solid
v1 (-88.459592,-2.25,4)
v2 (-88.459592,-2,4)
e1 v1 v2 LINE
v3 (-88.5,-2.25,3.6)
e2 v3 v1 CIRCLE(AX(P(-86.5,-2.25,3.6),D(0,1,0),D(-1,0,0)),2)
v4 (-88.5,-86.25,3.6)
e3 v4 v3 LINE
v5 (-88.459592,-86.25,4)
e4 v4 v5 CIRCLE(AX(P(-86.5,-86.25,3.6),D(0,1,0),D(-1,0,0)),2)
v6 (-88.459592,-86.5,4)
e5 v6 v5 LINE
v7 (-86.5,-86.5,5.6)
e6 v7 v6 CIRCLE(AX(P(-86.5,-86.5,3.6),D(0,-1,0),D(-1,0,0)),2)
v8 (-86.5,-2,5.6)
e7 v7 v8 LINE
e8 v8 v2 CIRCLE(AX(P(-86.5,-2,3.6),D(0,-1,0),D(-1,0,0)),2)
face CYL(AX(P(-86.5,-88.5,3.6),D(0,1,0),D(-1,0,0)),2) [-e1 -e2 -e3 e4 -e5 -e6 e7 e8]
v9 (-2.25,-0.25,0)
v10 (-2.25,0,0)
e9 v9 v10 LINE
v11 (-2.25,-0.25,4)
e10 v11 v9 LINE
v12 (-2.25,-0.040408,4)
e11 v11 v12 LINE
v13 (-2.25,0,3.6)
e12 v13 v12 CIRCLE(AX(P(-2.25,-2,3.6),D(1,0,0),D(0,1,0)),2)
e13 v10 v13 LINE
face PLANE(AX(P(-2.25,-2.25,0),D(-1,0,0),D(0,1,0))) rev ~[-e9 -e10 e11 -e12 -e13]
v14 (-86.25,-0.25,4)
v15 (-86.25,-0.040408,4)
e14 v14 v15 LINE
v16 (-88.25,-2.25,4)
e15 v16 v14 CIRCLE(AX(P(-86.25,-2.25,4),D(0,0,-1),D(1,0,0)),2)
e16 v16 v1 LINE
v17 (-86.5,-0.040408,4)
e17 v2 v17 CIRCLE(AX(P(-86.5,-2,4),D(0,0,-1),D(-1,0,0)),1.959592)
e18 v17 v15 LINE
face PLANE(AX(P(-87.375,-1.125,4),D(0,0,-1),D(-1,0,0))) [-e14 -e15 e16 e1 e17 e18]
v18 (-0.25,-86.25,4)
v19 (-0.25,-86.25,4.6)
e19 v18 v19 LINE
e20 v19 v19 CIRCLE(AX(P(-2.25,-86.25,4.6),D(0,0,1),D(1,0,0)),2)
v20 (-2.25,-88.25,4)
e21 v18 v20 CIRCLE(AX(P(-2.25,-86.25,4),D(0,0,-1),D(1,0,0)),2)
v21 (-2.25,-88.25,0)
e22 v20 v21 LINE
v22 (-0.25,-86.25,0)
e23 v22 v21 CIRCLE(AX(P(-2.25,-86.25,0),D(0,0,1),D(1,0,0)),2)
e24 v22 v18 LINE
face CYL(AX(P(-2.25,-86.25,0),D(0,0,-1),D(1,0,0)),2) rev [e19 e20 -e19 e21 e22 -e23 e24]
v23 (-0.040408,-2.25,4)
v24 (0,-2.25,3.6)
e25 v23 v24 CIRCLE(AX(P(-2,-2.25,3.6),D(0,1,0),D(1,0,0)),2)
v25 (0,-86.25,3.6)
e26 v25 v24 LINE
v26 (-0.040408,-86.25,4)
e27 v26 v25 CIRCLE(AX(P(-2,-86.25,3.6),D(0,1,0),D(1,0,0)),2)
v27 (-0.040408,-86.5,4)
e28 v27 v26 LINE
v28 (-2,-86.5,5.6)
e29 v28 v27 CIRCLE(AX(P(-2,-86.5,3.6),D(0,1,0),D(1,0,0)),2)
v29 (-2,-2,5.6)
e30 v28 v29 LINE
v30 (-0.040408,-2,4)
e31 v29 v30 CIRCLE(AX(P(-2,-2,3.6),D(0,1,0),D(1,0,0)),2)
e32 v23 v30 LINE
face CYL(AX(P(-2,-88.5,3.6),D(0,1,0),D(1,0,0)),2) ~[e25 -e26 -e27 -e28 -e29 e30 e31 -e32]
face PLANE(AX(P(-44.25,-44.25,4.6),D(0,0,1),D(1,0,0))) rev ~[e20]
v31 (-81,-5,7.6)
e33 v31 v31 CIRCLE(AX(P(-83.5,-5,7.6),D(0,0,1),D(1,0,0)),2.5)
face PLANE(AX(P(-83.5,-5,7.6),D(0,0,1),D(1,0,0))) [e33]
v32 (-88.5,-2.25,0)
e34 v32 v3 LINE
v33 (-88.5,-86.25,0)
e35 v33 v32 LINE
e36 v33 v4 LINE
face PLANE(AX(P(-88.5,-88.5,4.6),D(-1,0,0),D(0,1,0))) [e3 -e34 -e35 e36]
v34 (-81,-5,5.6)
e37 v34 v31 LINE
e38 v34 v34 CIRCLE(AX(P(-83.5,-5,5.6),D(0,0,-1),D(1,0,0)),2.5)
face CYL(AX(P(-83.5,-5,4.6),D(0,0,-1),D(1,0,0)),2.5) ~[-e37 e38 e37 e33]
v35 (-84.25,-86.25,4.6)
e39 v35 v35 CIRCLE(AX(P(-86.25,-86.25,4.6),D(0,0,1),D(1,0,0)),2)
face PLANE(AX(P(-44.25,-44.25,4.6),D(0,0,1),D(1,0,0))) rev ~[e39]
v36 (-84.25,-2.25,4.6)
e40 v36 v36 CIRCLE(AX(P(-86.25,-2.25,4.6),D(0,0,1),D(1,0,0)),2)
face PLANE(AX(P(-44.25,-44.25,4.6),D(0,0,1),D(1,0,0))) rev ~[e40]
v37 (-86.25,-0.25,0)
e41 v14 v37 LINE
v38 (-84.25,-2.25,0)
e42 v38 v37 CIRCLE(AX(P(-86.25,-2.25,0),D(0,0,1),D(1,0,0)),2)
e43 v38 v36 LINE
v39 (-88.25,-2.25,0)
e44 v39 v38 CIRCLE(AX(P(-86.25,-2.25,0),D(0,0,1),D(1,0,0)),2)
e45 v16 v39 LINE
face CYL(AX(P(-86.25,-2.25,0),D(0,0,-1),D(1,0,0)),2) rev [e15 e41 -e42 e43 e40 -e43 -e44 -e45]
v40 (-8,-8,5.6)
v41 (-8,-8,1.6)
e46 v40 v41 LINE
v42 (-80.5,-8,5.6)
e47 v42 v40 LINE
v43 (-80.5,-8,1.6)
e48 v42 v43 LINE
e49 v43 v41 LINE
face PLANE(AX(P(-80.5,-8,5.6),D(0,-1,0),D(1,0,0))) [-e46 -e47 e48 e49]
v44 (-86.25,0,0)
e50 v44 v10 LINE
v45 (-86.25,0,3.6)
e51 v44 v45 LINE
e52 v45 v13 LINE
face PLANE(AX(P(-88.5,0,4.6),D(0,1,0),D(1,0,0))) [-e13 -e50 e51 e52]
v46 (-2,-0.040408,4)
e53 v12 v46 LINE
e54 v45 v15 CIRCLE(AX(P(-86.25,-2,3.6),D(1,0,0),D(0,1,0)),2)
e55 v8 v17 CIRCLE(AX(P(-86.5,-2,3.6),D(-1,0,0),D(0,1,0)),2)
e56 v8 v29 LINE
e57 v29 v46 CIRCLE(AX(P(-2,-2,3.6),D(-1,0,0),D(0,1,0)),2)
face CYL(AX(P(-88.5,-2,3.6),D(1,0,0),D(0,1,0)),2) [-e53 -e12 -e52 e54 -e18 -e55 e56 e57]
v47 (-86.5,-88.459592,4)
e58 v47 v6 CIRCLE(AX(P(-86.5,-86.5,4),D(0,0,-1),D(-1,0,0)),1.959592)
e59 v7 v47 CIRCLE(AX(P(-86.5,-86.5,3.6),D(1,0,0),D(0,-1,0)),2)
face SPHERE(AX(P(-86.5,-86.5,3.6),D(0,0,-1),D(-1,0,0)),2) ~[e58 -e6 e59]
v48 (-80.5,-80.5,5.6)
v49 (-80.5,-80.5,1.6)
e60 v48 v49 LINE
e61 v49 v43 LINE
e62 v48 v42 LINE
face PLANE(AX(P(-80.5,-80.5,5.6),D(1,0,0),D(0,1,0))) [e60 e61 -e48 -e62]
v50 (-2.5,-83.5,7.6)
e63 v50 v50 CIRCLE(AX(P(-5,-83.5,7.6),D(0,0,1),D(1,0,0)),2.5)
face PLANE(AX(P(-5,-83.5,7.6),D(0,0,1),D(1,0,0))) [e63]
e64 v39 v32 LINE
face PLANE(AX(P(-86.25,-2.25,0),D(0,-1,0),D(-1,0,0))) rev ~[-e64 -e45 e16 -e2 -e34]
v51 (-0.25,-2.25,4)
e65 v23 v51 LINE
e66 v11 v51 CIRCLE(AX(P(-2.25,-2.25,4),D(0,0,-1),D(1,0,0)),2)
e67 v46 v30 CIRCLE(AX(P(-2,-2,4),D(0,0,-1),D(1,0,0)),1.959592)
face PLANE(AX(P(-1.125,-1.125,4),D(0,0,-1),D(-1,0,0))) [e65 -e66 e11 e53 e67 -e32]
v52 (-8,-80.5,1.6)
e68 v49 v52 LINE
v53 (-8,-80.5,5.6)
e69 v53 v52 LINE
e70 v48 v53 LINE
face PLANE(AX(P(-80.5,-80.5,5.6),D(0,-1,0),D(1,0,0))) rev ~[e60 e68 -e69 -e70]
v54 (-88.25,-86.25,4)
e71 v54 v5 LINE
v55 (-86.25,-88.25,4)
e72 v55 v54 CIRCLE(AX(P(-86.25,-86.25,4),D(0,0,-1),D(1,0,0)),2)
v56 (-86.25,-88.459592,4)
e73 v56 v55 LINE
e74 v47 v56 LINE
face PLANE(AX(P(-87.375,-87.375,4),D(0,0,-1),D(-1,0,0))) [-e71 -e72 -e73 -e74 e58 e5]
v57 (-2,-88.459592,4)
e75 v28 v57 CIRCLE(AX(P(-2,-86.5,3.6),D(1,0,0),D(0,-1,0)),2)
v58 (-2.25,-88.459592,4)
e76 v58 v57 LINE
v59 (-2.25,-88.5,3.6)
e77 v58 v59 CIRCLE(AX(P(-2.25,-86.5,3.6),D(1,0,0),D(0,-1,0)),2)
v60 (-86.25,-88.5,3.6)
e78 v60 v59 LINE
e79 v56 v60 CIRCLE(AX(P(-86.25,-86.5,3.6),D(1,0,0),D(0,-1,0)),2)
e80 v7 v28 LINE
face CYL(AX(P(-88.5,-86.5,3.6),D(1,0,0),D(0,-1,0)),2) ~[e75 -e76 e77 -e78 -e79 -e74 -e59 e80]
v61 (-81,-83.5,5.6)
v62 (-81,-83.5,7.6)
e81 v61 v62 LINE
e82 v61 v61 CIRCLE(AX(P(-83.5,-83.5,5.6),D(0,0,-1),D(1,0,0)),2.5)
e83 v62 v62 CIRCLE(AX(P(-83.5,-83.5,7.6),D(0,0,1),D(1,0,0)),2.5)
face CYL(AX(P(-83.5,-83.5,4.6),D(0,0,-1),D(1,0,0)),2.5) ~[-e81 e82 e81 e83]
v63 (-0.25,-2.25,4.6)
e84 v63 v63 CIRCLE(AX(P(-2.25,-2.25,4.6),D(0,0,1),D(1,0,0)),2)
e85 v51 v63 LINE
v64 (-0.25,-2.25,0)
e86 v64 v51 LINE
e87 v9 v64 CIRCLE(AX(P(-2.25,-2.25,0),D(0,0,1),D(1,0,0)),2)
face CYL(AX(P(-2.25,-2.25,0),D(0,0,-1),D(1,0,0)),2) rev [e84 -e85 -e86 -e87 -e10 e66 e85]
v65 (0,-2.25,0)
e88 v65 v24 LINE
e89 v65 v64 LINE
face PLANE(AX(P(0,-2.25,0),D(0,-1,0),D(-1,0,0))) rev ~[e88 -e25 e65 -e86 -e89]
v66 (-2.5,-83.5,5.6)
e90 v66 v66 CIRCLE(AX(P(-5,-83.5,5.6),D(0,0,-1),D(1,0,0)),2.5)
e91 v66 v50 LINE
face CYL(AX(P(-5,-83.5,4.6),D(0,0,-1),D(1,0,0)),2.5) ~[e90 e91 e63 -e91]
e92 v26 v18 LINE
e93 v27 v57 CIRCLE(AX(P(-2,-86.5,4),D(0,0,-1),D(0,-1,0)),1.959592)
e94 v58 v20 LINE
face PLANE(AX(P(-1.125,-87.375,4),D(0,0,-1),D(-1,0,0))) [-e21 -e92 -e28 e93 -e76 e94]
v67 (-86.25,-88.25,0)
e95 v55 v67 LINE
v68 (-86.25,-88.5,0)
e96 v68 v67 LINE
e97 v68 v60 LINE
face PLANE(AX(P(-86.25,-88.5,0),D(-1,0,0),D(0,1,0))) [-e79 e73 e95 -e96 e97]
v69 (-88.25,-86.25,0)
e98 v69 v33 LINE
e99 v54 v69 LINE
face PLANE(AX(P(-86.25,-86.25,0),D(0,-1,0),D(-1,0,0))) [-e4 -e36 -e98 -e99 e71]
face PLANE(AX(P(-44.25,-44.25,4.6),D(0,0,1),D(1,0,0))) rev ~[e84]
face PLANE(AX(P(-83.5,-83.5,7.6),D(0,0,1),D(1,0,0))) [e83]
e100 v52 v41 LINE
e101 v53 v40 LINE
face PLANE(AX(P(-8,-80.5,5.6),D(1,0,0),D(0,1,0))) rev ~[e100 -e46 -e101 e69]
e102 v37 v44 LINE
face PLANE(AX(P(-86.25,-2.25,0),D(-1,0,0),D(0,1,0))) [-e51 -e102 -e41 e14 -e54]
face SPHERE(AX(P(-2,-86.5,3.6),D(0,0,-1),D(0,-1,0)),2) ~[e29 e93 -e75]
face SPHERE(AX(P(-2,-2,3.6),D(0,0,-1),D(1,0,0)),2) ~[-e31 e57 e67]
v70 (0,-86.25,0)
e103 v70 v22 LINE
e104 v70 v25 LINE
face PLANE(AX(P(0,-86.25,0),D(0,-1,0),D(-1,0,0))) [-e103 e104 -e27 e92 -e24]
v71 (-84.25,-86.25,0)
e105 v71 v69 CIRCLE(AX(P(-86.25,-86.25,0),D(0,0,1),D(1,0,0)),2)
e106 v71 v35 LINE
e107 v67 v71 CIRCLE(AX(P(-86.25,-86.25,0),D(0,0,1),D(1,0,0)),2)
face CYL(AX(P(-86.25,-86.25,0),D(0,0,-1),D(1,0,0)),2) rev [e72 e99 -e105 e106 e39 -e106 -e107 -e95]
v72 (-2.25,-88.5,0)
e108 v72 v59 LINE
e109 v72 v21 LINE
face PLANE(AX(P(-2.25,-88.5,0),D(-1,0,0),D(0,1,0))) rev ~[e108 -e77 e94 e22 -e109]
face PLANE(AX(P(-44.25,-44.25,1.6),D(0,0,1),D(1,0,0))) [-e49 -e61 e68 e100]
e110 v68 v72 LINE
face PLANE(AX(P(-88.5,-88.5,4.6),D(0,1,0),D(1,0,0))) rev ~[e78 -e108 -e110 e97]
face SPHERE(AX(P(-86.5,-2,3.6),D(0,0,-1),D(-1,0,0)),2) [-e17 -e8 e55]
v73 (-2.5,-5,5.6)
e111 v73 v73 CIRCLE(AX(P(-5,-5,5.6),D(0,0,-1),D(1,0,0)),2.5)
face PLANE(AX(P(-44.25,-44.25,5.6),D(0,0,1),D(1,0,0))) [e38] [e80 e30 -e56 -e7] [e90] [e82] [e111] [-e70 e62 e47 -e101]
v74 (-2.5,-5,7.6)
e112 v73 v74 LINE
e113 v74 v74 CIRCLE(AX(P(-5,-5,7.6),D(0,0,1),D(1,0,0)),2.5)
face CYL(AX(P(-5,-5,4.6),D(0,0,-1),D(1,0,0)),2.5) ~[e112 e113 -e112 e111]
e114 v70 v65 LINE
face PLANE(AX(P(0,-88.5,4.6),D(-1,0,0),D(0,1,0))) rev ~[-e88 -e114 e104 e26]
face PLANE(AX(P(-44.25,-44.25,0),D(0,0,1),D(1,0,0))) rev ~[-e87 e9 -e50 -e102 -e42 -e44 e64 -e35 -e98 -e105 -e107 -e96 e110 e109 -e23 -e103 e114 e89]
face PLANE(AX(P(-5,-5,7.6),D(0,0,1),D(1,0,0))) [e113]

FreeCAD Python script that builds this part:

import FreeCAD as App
import Part
import Sketcher

V = App.Vector


def edges_at(feature, points):
    """Names of the edges that pass closest to the given points."""
    edges = feature.Shape.Edges
    near = lambda p: min(range(len(edges)), key=lambda i: edges[i].distToShape(Part.Vertex(*p))[0])
    return sorted({f"Edge{near(p) + 1}" for p in points})

doc = App.newDocument("Part")
params = doc.addObject("Spreadsheet::Sheet", "Params")
for row, (alias, value) in enumerate([
    ("sketch1_diameter", "4 mm"),
    ("sketch1_width", "88.5 mm"),
    ("pad1_length", "4.6 mm"),
    ("sketch2_diameter", "5 mm"),
    ("pad2_length", "3 mm"),
    ("sketch3_width", "88.5 mm"),
    ("pad3_length", "1 mm"),
    ("fillet_radius", "2 mm"),
    ("sketch4_width", "2.25 mm"),
    ("pocket1_length", "4 mm"),
    ("sketch5_width", "72.5 mm"),
    ("pocket2_length", "4 mm"),
], start=1):
    params.set(f"A{row}", alias)
    params.set(f"B{row}", "=" + value)
    params.setAlias(f"B{row}", alias)

body = doc.addObject("PartDesign::Body", "Body")

# Sketch on XY plane
sketch1 = doc.addObject("Sketcher::SketchObject", "Sketch")
body.addObject(sketch1)
sketch1.AttachmentSupport = (doc.XY_Plane, [""])
sketch1.MapMode = "FlatFace"
sketch1.addGeometry(Part.LineSegment(V(-88.5, 0, 0), V(-88.5, -88.5, 0)), False)
sketch1.addGeometry(Part.LineSegment(V(-88.5, -88.5, 0), V(0, -88.5, 0)), False)
sketch1.addGeometry(Part.LineSegment(V(0, -88.5, 0), V(0, 0, 0)), False)
sketch1.addGeometry(Part.LineSegment(V(0, 0, 0), V(-88.5, 0, 0)), False)
sketch1.addGeometry(Part.Circle(V(-86.2, -86.2, 0), V(0, 0, 1), 2), False)
sketch1.addGeometry(Part.Circle(V(-2.2, -86.2, 0), V(0, 0, 1), 2), False)
sketch1.addGeometry(Part.Circle(V(-86.2, -2.2, 0), V(0, 0, 1), 2), False)
sketch1.addGeometry(Part.Circle(V(-2.2, -2.2, 0), V(0, 0, 1), 2), False)
sketch1.addConstraint(Sketcher.Constraint("Coincident", 0, 2, 1, 1))
sketch1.addConstraint(Sketcher.Constraint("Coincident", 1, 2, 2, 1))
sketch1.addConstraint(Sketcher.Constraint("Coincident", 2, 2, 3, 1))
sketch1.addConstraint(Sketcher.Constraint("Coincident", 3, 2, 0, 1))
sketch1.addConstraint(Sketcher.Constraint("Vertical", 0))
sketch1.addConstraint(Sketcher.Constraint("Horizontal", 1))
sketch1.addConstraint(Sketcher.Constraint("Vertical", 2))
sketch1.addConstraint(Sketcher.Constraint("Horizontal", 3))
sketch1.addConstraint(Sketcher.Constraint("Coincident", 2, 2, -1, 1))
sketch1.addConstraint(Sketcher.Constraint("Equal", 4, 5))
sketch1.addConstraint(Sketcher.Constraint("Equal", 5, 6))
sketch1.addConstraint(Sketcher.Constraint("Equal", 6, 7))
sketch1.addConstraint(Sketcher.Constraint("Horizontal", 4, 3, 5, 3))
sketch1.addConstraint(Sketcher.Constraint("Horizontal", 6, 3, 7, 3))
sketch1.addConstraint(Sketcher.Constraint("Vertical", 4, 3, 6, 3))
sketch1.addConstraint(Sketcher.Constraint("Vertical", 5, 3, 7, 3))
sketch1.addConstraint(Sketcher.Constraint("Equal", 3, 0))
sketch1.addConstraint(Sketcher.Constraint("Diameter", 4, 4.0))
sketch1.addConstraint(Sketcher.Constraint("DistanceX", 1, 1, 1, 2, 88.5))
sketch1.addConstraint(Sketcher.Constraint("DistanceX", 4, 3, 5, 3, 84.0))
sketch1.addConstraint(Sketcher.Constraint("DistanceY", 4, 3, 6, 3, 84.0))
sketch1.addConstraint(Sketcher.Constraint("DistanceX", 4, 3, -1, 1, 86.25))
sketch1.addConstraint(Sketcher.Constraint("DistanceY", 4, 3, -1, 1, 86.25))
sketch1.setExpression("Constraints[17]", "Params.sketch1_diameter")
sketch1.setExpression("Constraints[18]", "Params.sketch1_width")
pad1 = doc.addObject("PartDesign::Pad", "Pad")
body.addObject(pad1)
pad1.Profile = sketch1
pad1.setExpression("Length", "Params.pad1_length")

# Sketch on XY plane
sketch2 = doc.addObject("Sketcher::SketchObject", "Sketch001")
body.addObject(sketch2)
sketch2.AttachmentSupport = (doc.XY_Plane, [""])
sketch2.MapMode = "FlatFace"
sketch2.AttachmentOffset = App.Placement(V(0, 0, 4.6), App.Rotation())
sketch2.addGeometry(Part.Circle(V(-5, -83.5, 0), V(0, 0, 1), 2.5), False)
sketch2.addGeometry(Part.Circle(V(-83.5, -83.5, 0), V(0, 0, 1), 2.5), False)
sketch2.addGeometry(Part.Circle(V(-5, -5, 0), V(0, 0, 1), 2.5), False)
sketch2.addGeometry(Part.Circle(V(-83.5, -5, 0), V(0, 0, 1), 2.5), False)
sketch2.addConstraint(Sketcher.Constraint("Equal", 0, 1))
sketch2.addConstraint(Sketcher.Constraint("Equal", 1, 2))
sketch2.addConstraint(Sketcher.Constraint("Equal", 2, 3))
sketch2.addConstraint(Sketcher.Constraint("Horizontal", 0, 3, 1, 3))
sketch2.addConstraint(Sketcher.Constraint("Horizontal", 2, 3, 3, 3))
sketch2.addConstraint(Sketcher.Constraint("Vertical", 0, 3, 2, 3))
sketch2.addConstraint(Sketcher.Constraint("Vertical", 1, 3, 3, 3))
sketch2.addConstraint(Sketcher.Constraint("Diameter", 0, 5.0))
sketch2.addConstraint(Sketcher.Constraint("DistanceX", 0, 3, -1, 1, 5.0))
sketch2.addConstraint(Sketcher.Constraint("DistanceY", 2, 3, -1, 1, 5.0))
sketch2.addConstraint(Sketcher.Constraint("DistanceY", 0, 3, -1, 1, 83.5))
sketch2.addConstraint(Sketcher.Constraint("DistanceX", 1, 3, -1, 1, 83.5))
sketch2.setExpression("Constraints[7]", "Params.sketch2_diameter")
pad2 = doc.addObject("PartDesign::Pad", "Pad001")
body.addObject(pad2)
pad2.Profile = sketch2
pad2.setExpression("Length", "Params.pad2_length")

# Sketch on XY plane
sketch3 = doc.addObject("Sketcher::SketchObject", "Sketch002")
body.addObject(sketch3)
sketch3.AttachmentSupport = (doc.XY_Plane, [""])
sketch3.MapMode = "FlatFace"
sketch3.AttachmentOffset = App.Placement(V(0, 0, 4.6), App.Rotation())
sketch3.addGeometry(Part.LineSegment(V(-88, 0, 0), V(-88, -88, 0)), False)
sketch3.addGeometry(Part.LineSegment(V(-88, -88, 0), V(0, -88, 0)), False)
sketch3.addGeometry(Part.LineSegment(V(0, -88, 0), V(0, 0, 0)), False)
sketch3.addGeometry(Part.LineSegment(V(0, 0, 0), V(-88, 0, 0)), False)
sketch3.addConstraint(Sketcher.Constraint("Coincident", 0, 2, 1, 1))
sketch3.addConstraint(Sketcher.Constraint("Coincident", 1, 2, 2, 1))
sketch3.addConstraint(Sketcher.Constraint("Coincident", 2, 2, 3, 1))
sketch3.addConstraint(Sketcher.Constraint("Coincident", 3, 2, 0, 1))
sketch3.addConstraint(Sketcher.Constraint("Vertical", 0))
sketch3.addConstraint(Sketcher.Constraint("Horizontal", 1))
sketch3.addConstraint(Sketcher.Constraint("Vertical", 2))
sketch3.addConstraint(Sketcher.Constraint("Horizontal", 3))
sketch3.addConstraint(Sketcher.Constraint("Coincident", 2, 2, -1, 1))
sketch3.addConstraint(Sketcher.Constraint("Equal", 3, 0))
sketch3.addConstraint(Sketcher.Constraint("DistanceX", 1, 1, 1, 2, 88.5))
sketch3.setExpression("Constraints[10]", "Params.sketch3_width")
pad3 = doc.addObject("PartDesign::Pad", "Pad002")
body.addObject(pad3)
pad3.Profile = sketch3
pad3.setExpression("Length", "Params.pad3_length")
doc.recompute()

fillet = doc.addObject("PartDesign::Fillet", "Fillet")
body.addObject(fillet)
fillet.Base = (pad3, edges_at(pad3, [
    (0, 0, 2.8),
    (0, -88.5, 2.8),
    (-88.5, -88.5, 2.8),
    (-88.5, 0, 2.8),
    (-88.5, -44.25, 5.6),
    (-44.25, -88.5, 5.6),
    (0, -44.25, 5.6),
    (-44.25, 0, 5.6),
]))
fillet.setExpression("Radius", "Params.fillet_radius")

# Sketch on XY plane
sketch4 = doc.addObject("Sketcher::SketchObject", "Sketch003")
body.addObject(sketch4)
sketch4.AttachmentSupport = (doc.XY_Plane, [""])
sketch4.MapMode = "FlatFace"
sketch4.addGeometry(Part.LineSegment(V(-86.2, -86.2, 0), V(-86.2, -88.5, 0)), False)
sketch4.addGeometry(Part.LineSegment(V(-86.2, -88.5, 0), V(-88.5, -88.5, 0)), False)
sketch4.addGeometry(Part.LineSegment(V(-88.5, -88.5, 0), V(-88.5, -86.2, 0)), False)
sketch4.addGeometry(Part.LineSegment(V(-88.5, -86.2, 0), V(-86.2, -86.2, 0)), False)
sketch4.addGeometry(Part.LineSegment(V(0, -86.2, 0), V(0, -88.5, 0)), False)
sketch4.addGeometry(Part.LineSegment(V(0, -88.5, 0), V(-2.2, -88.5, 0)), False)
sketch4.addGeometry(Part.LineSegment(V(-2.2, -88.5, 0), V(-2.2, -86.2, 0)), False)
sketch4.addGeometry(Part.LineSegment(V(-2.2, -86.2, 0), V(0, -86.2, 0)), False)
sketch4.addGeometry(Part.LineSegment(V(-86.2, 0, 0), V(-86.2, -2.2, 0)), False)
sketch4.addGeometry(Part.LineSegment(V(-86.2, -2.2, 0), V(-88.5, -2.2, 0)), False)
sketch4.addGeometry(Part.LineSegment(V(-88.5, -2.2, 0), V(-88.5, 0, 0)), False)
sketch4.addGeometry(Part.LineSegment(V(-88.5, 0, 0), V(-86.2, 0, 0)), False)
sketch4.addGeometry(Part.LineSegment(V(0, 0, 0), V(0, -2.2, 0)), False)
sketch4.addGeometry(Part.LineSegment(V(0, -2.2, 0), V(-2.2, -2.2, 0)), False)
sketch4.addGeometry(Part.LineSegment(V(-2.2, -2.2, 0), V(-2.2, 0, 0)), False)
sketch4.addGeometry(Part.LineSegment(V(-2.2, 0, 0), V(0, 0, 0)), False)
sketch4.addConstraint(Sketcher.Constraint("Coincident", 0, 2, 1, 1))
sketch4.addConstraint(Sketcher.Constraint("Coincident", 1, 2, 2, 1))
sketch4.addConstraint(Sketcher.Constraint("Coincident", 2, 2, 3, 1))
sketch4.addConstraint(Sketcher.Constraint("Coincident", 3, 2, 0, 1))
sketch4.addConstraint(Sketcher.Constraint("Coincident", 4, 2, 5, 1))
sketch4.addConstraint(Sketcher.Constraint("Coincident", 5, 2, 6, 1))
sketch4.addConstraint(Sketcher.Constraint("Coincident", 6, 2, 7, 1))
sketch4.addConstraint(Sketcher.Constraint("Coincident", 7, 2, 4, 1))
sketch4.addConstraint(Sketcher.Constraint("Coincident", 8, 2, 9, 1))
sketch4.addConstraint(Sketcher.Constraint("Coincident", 9, 2, 10, 1))
sketch4.addConstraint(Sketcher.Constraint("Coincident", 10, 2, 11, 1))
sketch4.addConstraint(Sketcher.Constraint("Coincident", 11, 2, 8, 1))
sketch4.addConstraint(Sketcher.Constraint("Coincident", 12, 2, 13, 1))
sketch4.addConstraint(Sketcher.Constraint("Coincident", 13, 2, 14, 1))
sketch4.addConstraint(Sketcher.Constraint("Coincident", 14, 2, 15, 1))
sketch4.addConstraint(Sketcher.Constraint("Coincident", 15, 2, 12, 1))
sketch4.addConstraint(Sketcher.Constraint("Vertical", 0))
sketch4.addConstraint(Sketcher.Constraint("Horizontal", 1))
sketch4.addConstraint(Sketcher.Constraint("Vertical", 2))
sketch4.addConstraint(Sketcher.Constraint("Horizontal", 3))
sketch4.addConstraint(Sketcher.Constraint("Vertical", 4))
sketch4.addConstraint(Sketcher.Constraint("Horizontal", 5))
sketch4.addConstraint(Sketcher.Constraint("Vertical", 6))
sketch4.addConstraint(Sketcher.Constraint("Horizontal", 7))
sketch4.addConstraint(Sketcher.Constraint("Vertical", 8))
sketch4.addConstraint(Sketcher.Constraint("Horizontal", 9))
sketch4.addConstraint(Sketcher.Constraint("Vertical", 10))
sketch4.addConstraint(Sketcher.Constraint("Horizontal", 11))
sketch4.addConstraint(Sketcher.Constraint("Vertical", 12))
sketch4.addConstraint(Sketcher.Constraint("Horizontal", 13))
sketch4.addConstraint(Sketcher.Constraint("Vertical", 14))
sketch4.addConstraint(Sketcher.Constraint("Horizontal", 15))
sketch4.addConstraint(Sketcher.Constraint("Coincident", 15, 2, -1, 1))
sketch4.addConstraint(Sketcher.Constraint("PointOnObject", 4, 2, -2))
sketch4.addConstraint(Sketcher.Constraint("PointOnObject", 10, 2, -1))
sketch4.addConstraint(Sketcher.Constraint("Horizontal", 1, 2, 4, 2))
sketch4.addConstraint(Sketcher.Constraint("Horizontal", 3, 2, 6, 2))
sketch4.addConstraint(Sketcher.Constraint("Horizontal", 9, 2, 12, 2))
sketch4.addConstraint(Sketcher.Constraint("Vertical", 3, 2, 8, 2))
sketch4.addConstraint(Sketcher.Constraint("Vertical", 2, 2, 9, 2))
sketch4.addConstraint(Sketcher.Constraint("Vertical", 6, 2, 13, 2))
sketch4.addConstraint(Sketcher.Constraint("Equal", 3, 5))
sketch4.addConstraint(Sketcher.Constraint("Equal", 15, 0))
sketch4.addConstraint(Sketcher.Constraint("Equal", 6, 8))
sketch4.addConstraint(Sketcher.Constraint("DistanceX", 0, 2, 5, 2, 84.0))
sketch4.addConstraint(Sketcher.Constraint("DistanceY", 3, 2, 8, 2, 84.0))
sketch4.addConstraint(Sketcher.Constraint("DistanceX", 1, 2, 1, 1, 2.25))
sketch4.setExpression("Constraints[46]", "Params.sketch4_width")
pocket1 = doc.addObject("PartDesign::Pocket", "Pocket")
body.addObject(pocket1)
pocket1.Profile = sketch4
pocket1.setExpression("Length", "Params.pocket1_length")
pocket1.Reversed = True

# Sketch on XY plane
sketch5 = doc.addObject("Sketcher::SketchObject", "Sketch004")
body.addObject(sketch5)
sketch5.AttachmentSupport = (doc.XY_Plane, [""])
sketch5.MapMode = "FlatFace"
sketch5.AttachmentOffset = App.Placement(V(0, 0, 5.6), App.Rotation())
sketch5.addGeometry(Part.LineSegment(V(-80, -8, 0), V(-80, -80, 0)), False)
sketch5.addGeometry(Part.LineSegment(V(-80, -80, 0), V(-8, -80, 0)), False)
sketch5.addGeometry(Part.LineSegment(V(-8, -80, 0), V(-8, -8, 0)), False)
sketch5.addGeometry(Part.LineSegment(V(-8, -8, 0), V(-80, -8, 0)), False)
sketch5.addConstraint(Sketcher.Constraint("Coincident", 0, 2, 1, 1))
sketch5.addConstraint(Sketcher.Constraint("Coincident", 1, 2, 2, 1))
sketch5.addConstraint(Sketcher.Constraint("Coincident", 2, 2, 3, 1))
sketch5.addConstraint(Sketcher.Constraint("Coincident", 3, 2, 0, 1))
sketch5.addConstraint(Sketcher.Constraint("Vertical", 0))
sketch5.addConstraint(Sketcher.Constraint("Horizontal", 1))
sketch5.addConstraint(Sketcher.Constraint("Vertical", 2))
sketch5.addConstraint(Sketcher.Constraint("Horizontal", 3))
sketch5.addConstraint(Sketcher.Constraint("Equal", 3, 0))
sketch5.addConstraint(Sketcher.Constraint("DistanceX", 1, 1, 1, 2, 72.5))
sketch5.addConstraint(Sketcher.Constraint("DistanceX", 1, 2, -1, 1, 8.0))
sketch5.addConstraint(Sketcher.Constraint("DistanceY", 2, 2, -1, 1, 8.0))
sketch5.setExpression("Constraints[9]", "Params.sketch5_width")
pocket2 = doc.addObject("PartDesign::Pocket", "Pocket001")
body.addObject(pocket2)
pocket2.Profile = sketch5
pocket2.setExpression("Length", "Params.pocket2_length")

doc.recompute()
